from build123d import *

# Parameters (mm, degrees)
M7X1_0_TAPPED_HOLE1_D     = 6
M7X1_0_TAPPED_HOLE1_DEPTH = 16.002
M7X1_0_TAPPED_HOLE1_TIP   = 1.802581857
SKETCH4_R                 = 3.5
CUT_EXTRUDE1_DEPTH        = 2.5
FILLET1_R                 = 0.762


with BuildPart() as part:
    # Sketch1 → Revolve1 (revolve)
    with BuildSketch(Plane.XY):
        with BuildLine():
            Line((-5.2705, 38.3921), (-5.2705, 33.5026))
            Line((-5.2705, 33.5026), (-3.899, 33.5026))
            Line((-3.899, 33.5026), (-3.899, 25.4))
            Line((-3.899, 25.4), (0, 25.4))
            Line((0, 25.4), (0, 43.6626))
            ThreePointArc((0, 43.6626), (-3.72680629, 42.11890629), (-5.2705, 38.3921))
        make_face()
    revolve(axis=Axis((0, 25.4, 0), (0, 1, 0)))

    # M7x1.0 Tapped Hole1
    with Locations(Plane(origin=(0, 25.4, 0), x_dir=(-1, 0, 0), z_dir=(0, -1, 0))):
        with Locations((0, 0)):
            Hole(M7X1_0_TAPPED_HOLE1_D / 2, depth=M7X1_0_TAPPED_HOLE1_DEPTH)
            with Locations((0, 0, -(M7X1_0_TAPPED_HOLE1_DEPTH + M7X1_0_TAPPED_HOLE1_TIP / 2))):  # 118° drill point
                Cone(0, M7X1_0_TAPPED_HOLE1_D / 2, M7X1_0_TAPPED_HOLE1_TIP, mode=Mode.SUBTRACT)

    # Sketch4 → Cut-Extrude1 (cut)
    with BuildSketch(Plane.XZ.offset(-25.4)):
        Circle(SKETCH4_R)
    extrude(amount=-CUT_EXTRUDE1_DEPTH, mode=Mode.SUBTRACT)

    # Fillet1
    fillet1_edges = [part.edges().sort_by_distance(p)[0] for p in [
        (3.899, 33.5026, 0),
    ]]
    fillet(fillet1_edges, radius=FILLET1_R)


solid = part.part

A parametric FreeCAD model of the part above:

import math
import FreeCAD as App
import Part
import Sketcher
from FreeCAD import Vector
Q = App.Units.Quantity


def edges_at(feature, points):
    """Names of the edges that pass closest to the given points."""
    edges = feature.Shape.Edges
    near = lambda p: min(range(len(edges)), key=lambda i: edges[i].distToShape(Part.Vertex(*p))[0])
    return sorted({f"Edge{near(p) + 1}" for p in points})

doc = App.newDocument("Part")
body = doc.addObject("PartDesign::Body", "Body")

sketch1 = body.newObject("Sketcher::SketchObject", "Sketch")
sketch1.AttachmentSupport = (doc.getObject("XY_Plane"), [""])
sketch1.MapMode = "FlatFace"
sketch1.addGeometry([
    Part.LineSegment(Vector(-5.3, 38.4, 0), Vector(-5.3, 33.5, 0)),
    Part.LineSegment(Vector(-5.3, 33.5, 0), Vector(-3.9, 33.5, 0)),
    Part.LineSegment(Vector(-3.9, 33.5, 0), Vector(-3.9, 25.4, 0)),
    Part.LineSegment(Vector(-3.9, 25.4, 0), Vector(0, 25.4, 0)),
    Part.LineSegment(Vector(0, 25.4, 0), Vector(0, 43.7, 0)),
    Part.ArcOfCircle(Part.Circle(Vector(0, 38.4, 0), Vector(0, 0, 1), 5.3), math.radians(90), math.radians(180)),
], False)
sketch1.addConstraint([
    Sketcher.Constraint("Coincident", 0, 2, 1, 1),
    Sketcher.Constraint("Coincident", 1, 2, 2, 1),
    Sketcher.Constraint("Coincident", 2, 2, 3, 1),
    Sketcher.Constraint("Coincident", 3, 2, 4, 1),
    Sketcher.Constraint("Coincident", 4, 2, 5, 1),
    Sketcher.Constraint("Tangent", 5, 2, 0, 1),
    Sketcher.Constraint("Vertical", 0),
    Sketcher.Constraint("Horizontal", 1),
    Sketcher.Constraint("Vertical", 2),
    Sketcher.Constraint("Horizontal", 3),
    Sketcher.Constraint("Vertical", 4),
    Sketcher.Constraint("PointOnObject", 5, 3, -2),
    Sketcher.Constraint("PointOnObject", 3, 2, -2),
    Sketcher.Constraint("DistanceY", -1, 1, 2, 2, Q("1 in")),
    Sketcher.Constraint("Radius", 5, Q("0.2075 in")),
    Sketcher.Constraint("DistanceY", 1, 2, 4, 2, Q("0.4 in")),
    Sketcher.Constraint("DistanceY", 2, 2, 2, 1, Q("0.319 in")),
    Sketcher.Constraint("DistanceX", 1, 1, 1, 2, Q("1.3715 mm")),
])
revolution = body.newObject("PartDesign::Revolution", "Revolution")
revolution.Profile = sketch1
revolution.ReferenceAxis = (sketch1, ["V_Axis"])
revolution.Angle = 360

sketch2 = body.newObject("Sketcher::SketchObject", "Sketch001")
sketch2.AttachmentSupport = (doc.getObject("XZ_Plane"), [""])
sketch2.MapMode = "FlatFace"
sketch2.AttachmentOffset = App.Placement(Vector(0, 0, -1 * 25.4), App.Rotation())
sketch2.addGeometry(Part.Circle(Vector(0, 0, 0), Vector(0, 0, 1), 3), False)
sketch2.addConstraint([
    Sketcher.Constraint("Coincident", 0, 3, -1, 1),
    Sketcher.Constraint("Diameter", 0, Q("6 mm")),
])
doc.recompute()
hole = body.newObject("PartDesign::Hole", "Hole")
hole.Profile = sketch2
hole.ThreadType = "None"
hole.Diameter = 6
hole.DepthType = "Dimension"
hole.Depth = Q("0.63 in")
hole.DrillPoint = "Angled"
hole.DrillPointAngle = 118

sketch3 = body.newObject("Sketcher::SketchObject", "Sketch002")
sketch3.AttachmentSupport = (doc.getObject("XZ_Plane"), [""])
sketch3.MapMode = "FlatFace"
sketch3.AttachmentOffset = App.Placement(Vector(0, 0, -1 * 25.4), App.Rotation())
sketch3.addGeometry(Part.Circle(Vector(0, 0, 0), Vector(0, 0, 1), 3.5), False)
sketch3.addConstraint([
    Sketcher.Constraint("Coincident", 0, 3, -1, 1),
    Sketcher.Constraint("Diameter", 0, Q("7 mm")),
])
pocket1 = body.newObject("PartDesign::Pocket", "Pocket")
pocket1.Profile = sketch3
pocket1.Length = 2.5
doc.recompute()

fillet = body.newObject("PartDesign::Fillet", "Fillet")
fillet.Base = (pocket1, edges_at(pocket1, [(3.899, 33.503, 0)]))
fillet.Radius = Q("0.03 in")

doc.recompute()
